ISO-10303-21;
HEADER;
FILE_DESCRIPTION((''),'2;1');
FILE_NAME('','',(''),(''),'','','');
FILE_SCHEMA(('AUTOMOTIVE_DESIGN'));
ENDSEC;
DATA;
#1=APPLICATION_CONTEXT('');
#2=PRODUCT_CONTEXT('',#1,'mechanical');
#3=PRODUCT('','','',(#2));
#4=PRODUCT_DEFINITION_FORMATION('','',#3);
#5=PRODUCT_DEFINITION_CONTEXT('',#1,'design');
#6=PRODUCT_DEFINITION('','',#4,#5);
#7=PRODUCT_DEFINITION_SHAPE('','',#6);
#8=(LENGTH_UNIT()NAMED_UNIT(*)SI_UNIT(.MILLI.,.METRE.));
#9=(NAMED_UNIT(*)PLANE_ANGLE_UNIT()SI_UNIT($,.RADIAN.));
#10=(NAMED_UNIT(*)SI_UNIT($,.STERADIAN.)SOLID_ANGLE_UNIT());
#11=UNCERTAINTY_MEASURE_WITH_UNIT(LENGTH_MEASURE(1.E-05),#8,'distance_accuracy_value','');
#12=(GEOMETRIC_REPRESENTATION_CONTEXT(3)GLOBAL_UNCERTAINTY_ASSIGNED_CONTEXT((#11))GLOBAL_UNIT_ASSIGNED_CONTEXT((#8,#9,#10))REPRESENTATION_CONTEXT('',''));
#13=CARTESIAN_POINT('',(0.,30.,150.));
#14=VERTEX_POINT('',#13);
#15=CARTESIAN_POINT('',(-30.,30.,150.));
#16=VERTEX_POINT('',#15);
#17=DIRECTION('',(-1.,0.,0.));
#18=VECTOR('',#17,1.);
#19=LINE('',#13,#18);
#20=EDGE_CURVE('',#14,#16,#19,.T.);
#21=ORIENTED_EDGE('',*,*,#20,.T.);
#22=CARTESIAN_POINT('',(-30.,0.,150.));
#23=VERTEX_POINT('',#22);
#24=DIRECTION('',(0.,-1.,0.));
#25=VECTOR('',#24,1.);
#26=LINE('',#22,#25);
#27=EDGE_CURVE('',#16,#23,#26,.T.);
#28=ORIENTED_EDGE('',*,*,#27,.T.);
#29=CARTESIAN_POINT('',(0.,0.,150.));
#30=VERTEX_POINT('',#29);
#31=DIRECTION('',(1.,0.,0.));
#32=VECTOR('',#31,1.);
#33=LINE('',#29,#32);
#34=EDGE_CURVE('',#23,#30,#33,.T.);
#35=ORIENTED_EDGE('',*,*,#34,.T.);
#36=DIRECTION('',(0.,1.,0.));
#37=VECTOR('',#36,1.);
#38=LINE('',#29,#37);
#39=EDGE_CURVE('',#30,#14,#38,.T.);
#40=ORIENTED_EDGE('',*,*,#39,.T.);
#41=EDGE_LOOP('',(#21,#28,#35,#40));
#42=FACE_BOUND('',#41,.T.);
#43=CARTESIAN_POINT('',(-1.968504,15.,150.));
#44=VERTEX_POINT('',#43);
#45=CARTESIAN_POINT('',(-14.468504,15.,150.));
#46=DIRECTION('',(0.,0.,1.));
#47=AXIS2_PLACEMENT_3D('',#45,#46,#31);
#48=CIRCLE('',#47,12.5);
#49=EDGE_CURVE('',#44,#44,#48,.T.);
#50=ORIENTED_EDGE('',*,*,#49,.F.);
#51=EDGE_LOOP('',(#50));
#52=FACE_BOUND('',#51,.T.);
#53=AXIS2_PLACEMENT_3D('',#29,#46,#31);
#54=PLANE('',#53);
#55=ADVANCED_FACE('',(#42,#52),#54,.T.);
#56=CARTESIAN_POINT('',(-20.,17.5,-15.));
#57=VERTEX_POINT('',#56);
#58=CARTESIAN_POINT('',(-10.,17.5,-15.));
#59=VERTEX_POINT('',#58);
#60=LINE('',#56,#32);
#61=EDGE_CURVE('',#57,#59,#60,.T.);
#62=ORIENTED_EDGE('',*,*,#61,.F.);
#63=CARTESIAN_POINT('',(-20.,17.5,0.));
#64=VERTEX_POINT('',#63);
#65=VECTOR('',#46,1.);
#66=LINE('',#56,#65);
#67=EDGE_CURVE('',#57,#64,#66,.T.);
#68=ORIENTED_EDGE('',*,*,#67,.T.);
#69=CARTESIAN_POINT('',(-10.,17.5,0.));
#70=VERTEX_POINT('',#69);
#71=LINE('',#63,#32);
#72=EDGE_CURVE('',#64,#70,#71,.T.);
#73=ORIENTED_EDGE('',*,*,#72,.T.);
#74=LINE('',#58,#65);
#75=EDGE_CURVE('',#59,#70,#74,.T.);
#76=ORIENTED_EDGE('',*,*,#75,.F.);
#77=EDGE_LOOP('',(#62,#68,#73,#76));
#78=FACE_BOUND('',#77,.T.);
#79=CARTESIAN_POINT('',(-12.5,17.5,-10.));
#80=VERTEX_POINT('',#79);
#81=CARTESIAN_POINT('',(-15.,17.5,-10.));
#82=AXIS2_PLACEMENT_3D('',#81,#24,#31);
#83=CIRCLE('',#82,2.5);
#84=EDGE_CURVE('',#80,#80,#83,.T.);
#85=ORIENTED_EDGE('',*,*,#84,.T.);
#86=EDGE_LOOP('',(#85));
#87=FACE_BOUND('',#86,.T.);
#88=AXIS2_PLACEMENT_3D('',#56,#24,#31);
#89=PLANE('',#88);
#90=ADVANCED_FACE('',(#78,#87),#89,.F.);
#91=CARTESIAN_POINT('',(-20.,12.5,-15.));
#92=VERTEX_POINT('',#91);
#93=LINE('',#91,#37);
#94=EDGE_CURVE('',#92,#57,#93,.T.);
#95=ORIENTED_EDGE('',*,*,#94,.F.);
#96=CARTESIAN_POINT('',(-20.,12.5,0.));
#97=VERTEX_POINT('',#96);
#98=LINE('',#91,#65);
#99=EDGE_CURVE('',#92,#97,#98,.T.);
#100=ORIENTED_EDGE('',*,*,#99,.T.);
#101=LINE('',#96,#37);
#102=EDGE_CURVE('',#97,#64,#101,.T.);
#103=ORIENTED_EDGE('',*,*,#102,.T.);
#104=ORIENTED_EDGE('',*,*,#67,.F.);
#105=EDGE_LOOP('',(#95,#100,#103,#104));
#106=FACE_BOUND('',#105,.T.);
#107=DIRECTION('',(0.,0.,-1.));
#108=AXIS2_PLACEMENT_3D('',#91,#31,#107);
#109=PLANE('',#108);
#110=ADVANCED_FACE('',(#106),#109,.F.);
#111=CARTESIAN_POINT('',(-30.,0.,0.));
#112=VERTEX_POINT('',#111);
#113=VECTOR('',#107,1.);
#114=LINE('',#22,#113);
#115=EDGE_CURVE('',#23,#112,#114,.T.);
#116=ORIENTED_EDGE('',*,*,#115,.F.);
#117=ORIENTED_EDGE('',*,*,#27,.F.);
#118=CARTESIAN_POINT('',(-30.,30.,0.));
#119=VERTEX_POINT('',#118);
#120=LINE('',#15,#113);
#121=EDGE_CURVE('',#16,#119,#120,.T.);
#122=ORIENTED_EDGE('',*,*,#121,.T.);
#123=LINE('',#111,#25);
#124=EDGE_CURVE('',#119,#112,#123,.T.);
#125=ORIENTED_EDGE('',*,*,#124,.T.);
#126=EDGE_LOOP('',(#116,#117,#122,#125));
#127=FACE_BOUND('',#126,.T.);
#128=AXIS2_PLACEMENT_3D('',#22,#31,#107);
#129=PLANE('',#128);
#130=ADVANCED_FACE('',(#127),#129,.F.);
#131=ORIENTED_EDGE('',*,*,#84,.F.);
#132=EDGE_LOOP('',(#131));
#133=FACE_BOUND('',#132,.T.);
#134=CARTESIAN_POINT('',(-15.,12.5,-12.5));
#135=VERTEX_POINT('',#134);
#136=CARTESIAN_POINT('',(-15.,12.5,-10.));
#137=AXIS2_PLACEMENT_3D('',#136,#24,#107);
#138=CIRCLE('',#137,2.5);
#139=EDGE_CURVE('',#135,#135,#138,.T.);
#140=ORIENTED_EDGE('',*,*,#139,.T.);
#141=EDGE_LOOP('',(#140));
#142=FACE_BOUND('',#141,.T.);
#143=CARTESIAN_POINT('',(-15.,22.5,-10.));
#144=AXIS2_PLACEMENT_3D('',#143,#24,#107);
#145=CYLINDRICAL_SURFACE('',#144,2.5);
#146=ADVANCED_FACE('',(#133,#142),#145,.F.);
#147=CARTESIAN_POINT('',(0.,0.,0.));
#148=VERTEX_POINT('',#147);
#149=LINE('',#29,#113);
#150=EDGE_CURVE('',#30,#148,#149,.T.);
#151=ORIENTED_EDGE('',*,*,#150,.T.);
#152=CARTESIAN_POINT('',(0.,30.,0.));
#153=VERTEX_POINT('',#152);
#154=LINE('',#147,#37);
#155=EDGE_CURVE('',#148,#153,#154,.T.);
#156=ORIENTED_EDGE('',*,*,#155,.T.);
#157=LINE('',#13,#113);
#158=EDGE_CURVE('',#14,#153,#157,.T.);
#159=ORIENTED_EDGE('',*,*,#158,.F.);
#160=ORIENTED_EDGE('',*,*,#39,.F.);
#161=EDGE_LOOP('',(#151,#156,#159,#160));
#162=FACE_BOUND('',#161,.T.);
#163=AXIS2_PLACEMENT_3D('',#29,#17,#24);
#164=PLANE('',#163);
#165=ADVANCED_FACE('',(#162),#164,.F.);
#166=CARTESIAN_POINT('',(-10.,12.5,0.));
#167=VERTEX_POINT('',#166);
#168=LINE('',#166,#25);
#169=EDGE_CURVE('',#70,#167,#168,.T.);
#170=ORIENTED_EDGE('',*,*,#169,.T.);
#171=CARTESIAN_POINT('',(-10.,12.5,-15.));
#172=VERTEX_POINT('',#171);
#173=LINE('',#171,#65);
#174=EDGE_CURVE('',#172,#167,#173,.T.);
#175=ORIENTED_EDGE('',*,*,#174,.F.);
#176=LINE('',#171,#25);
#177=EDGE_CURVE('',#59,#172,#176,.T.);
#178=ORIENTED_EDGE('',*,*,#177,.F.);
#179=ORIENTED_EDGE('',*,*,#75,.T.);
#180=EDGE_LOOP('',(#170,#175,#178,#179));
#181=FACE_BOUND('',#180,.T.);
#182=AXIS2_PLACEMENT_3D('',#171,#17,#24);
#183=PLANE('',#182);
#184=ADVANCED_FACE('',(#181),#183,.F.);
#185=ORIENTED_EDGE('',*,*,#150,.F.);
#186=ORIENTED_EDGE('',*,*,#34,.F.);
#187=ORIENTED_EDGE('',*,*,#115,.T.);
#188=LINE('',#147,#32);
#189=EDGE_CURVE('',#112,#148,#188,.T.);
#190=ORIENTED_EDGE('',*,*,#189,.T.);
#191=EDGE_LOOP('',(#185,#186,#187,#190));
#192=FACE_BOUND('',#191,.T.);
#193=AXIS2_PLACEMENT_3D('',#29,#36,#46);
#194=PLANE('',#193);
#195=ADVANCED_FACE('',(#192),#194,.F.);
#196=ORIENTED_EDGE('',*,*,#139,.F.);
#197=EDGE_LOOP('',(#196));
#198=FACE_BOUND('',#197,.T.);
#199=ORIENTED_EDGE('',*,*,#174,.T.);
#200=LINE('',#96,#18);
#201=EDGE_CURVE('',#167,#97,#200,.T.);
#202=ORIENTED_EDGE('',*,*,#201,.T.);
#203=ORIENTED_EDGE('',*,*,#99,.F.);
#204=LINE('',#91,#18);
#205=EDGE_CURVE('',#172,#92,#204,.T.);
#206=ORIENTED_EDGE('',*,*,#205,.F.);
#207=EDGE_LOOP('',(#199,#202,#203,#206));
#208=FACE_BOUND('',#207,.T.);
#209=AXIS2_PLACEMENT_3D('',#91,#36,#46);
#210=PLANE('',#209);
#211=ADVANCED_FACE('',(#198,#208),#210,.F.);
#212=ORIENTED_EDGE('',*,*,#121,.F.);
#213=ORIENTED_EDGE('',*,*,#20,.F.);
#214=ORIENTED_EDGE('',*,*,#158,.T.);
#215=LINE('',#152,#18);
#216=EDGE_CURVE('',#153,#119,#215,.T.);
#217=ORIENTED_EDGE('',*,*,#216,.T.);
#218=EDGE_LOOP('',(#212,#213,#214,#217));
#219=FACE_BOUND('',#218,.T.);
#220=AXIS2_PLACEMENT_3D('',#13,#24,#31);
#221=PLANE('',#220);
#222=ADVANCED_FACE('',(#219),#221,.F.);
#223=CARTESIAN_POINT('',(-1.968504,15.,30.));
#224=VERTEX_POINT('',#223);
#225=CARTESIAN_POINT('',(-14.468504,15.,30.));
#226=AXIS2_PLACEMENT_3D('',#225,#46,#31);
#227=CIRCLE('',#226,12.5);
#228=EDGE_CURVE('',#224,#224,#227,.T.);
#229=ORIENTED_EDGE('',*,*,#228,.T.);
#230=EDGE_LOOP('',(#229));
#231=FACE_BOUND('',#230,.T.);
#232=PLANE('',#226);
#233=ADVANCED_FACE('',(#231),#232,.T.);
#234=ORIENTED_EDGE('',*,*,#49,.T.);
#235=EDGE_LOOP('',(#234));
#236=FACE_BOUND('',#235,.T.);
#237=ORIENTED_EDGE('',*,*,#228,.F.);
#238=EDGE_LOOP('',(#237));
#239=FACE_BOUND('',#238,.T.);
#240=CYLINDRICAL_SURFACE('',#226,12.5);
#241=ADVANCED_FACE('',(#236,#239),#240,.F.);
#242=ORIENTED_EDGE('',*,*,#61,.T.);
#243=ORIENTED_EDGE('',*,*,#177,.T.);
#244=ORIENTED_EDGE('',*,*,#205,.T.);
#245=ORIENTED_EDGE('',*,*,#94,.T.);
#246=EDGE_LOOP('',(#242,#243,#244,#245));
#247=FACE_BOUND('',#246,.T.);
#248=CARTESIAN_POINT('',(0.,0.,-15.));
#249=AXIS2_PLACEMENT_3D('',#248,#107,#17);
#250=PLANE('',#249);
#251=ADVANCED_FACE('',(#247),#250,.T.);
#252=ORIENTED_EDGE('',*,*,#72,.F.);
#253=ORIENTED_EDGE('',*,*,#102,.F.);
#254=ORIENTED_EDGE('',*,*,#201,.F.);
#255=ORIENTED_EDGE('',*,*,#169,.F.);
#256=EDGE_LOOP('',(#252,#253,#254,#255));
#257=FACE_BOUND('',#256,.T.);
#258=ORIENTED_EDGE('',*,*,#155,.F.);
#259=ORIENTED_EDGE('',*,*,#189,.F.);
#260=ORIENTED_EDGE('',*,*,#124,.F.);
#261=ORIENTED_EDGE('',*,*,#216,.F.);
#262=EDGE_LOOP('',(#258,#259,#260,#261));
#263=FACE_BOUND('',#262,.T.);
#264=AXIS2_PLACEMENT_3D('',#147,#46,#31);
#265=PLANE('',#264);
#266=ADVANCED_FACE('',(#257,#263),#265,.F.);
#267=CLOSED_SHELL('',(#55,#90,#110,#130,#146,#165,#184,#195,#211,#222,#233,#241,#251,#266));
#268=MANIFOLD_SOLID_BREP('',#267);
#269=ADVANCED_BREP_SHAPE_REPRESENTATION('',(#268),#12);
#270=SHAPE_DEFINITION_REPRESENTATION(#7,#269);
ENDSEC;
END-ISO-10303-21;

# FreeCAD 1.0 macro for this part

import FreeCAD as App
import Part
import Sketcher
Q = App.Units.Quantity

doc = App.newDocument("Part")
body = doc.addObject("PartDesign::Body", "Body")

# Sketch on XY plane
sketch1 = body.newObject("Sketcher::SketchObject", "Sketch")
sketch1.AttachmentSupport = (doc.getObject("XY_Plane"), [""])
sketch1.MapMode = "FlatFace"
sketch1.addGeometry([
    Part.LineSegment(App.Vector(-30, 30, 0), App.Vector(-30, 0, 0)),
    Part.LineSegment(App.Vector(-30, 0, 0), App.Vector(0, 0, 0)),
    Part.LineSegment(App.Vector(0, 0, 0), App.Vector(0, 30, 0)),
    Part.LineSegment(App.Vector(0, 30, 0), App.Vector(-30, 30, 0)),
], False)
sketch1.addConstraint([
    Sketcher.Constraint("Coincident", 0, 2, 1, 1),
    Sketcher.Constraint("Coincident", 1, 2, 2, 1),
    Sketcher.Constraint("Coincident", 2, 2, 3, 1),
    Sketcher.Constraint("Coincident", 3, 2, 0, 1),
    Sketcher.Constraint("Vertical", 0),
    Sketcher.Constraint("Horizontal", 1),
    Sketcher.Constraint("Vertical", 2),
    Sketcher.Constraint("Horizontal", 3),
    Sketcher.Constraint("Coincident", 1, 2, -1, 1),
    Sketcher.Constraint("Equal", 3, 0),
    Sketcher.Constraint("DistanceX", 1, 1, 1, 2, Q("30 mm")),
])
pad1 = body.newObject("PartDesign::Pad", "Pad")
pad1.Profile = sketch1
pad1.Length = 150

# Sketch on XY plane
sketch2 = body.newObject("Sketcher::SketchObject", "Sketch001")
sketch2.AttachmentSupport = (doc.getObject("XY_Plane"), [""])
sketch2.MapMode = "FlatFace"
sketch2.AttachmentOffset = App.Placement(App.Vector(0, 0, 150), App.Rotation())
sketch2.addGeometry(Part.Circle(App.Vector(-14.468504, 15, 0), App.Vector(0, 0, 1), 12.5), False)
sketch2.addConstraint([
    Sketcher.Constraint("Diameter", 0, Q("25 mm")),
    Sketcher.Constraint("DistanceY", -1, 1, 0, 3, Q("15 mm")),
    Sketcher.Constraint("DistanceX", 0, 3, -1, 1, Q("14.468504 mm")),
])
pocket1 = body.newObject("PartDesign::Pocket", "Pocket")
pocket1.Profile = sketch2
pocket1.Length = 120

# Sketch on XY plane
sketch3 = body.newObject("Sketcher::SketchObject", "Sketch002")
sketch3.AttachmentSupport = (doc.getObject("XY_Plane"), [""])
sketch3.MapMode = "FlatFace"
sketch3.addGeometry([
    Part.LineSegment(App.Vector(-10, 17.5, 0), App.Vector(-10, 12.5, 0)),
    Part.LineSegment(App.Vector(-10, 12.5, 0), App.Vector(-20, 12.5, 0)),
    Part.LineSegment(App.Vector(-20, 12.5, 0), App.Vector(-20, 17.5, 0)),
    Part.LineSegment(App.Vector(-20, 17.5, 0), App.Vector(-10, 17.5, 0)),
], False)
sketch3.addConstraint([
    Sketcher.Constraint("Coincident", 0, 2, 1, 1),
    Sketcher.Constraint("Coincident", 1, 2, 2, 1),
    Sketcher.Constraint("Coincident", 2, 2, 3, 1),
    Sketcher.Constraint("Coincident", 3, 2, 0, 1),
    Sketcher.Constraint("Vertical", 0),
    Sketcher.Constraint("Horizontal", 1),
    Sketcher.Constraint("Vertical", 2),
    Sketcher.Constraint("Horizontal", 3),
    Sketcher.Constraint("DistanceX", 1, 2, 1, 1, Q("10 mm")),
    Sketcher.Constraint("DistanceY", 0, 2, 0, 1, Q("5 mm")),
    Sketcher.Constraint("DistanceX", 0, 2, -1, 1, Q("10 mm")),
    Sketcher.Constraint("DistanceY", -1, 1, 0, 2, Q("12.5 mm")),
])
pad2 = body.newObject("PartDesign::Pad", "Pad001")
pad2.Profile = sketch3
pad2.Length = 15
pad2.Reversed = True

# Sketch on XZ plane
sketch4 = body.newObject("Sketcher::SketchObject", "Sketch003")
sketch4.AttachmentSupport = (doc.getObject("XZ_Plane"), [""])
sketch4.MapMode = "FlatFace"
sketch4.AttachmentOffset = App.Placement(App.Vector(0, 0, -12.5), App.Rotation())
sketch4.addGeometry(Part.Circle(App.Vector(-15, -10, 0), App.Vector(0, 0, 1), 2.5), False)
sketch4.addConstraint([
    Sketcher.Constraint("Diameter", 0, Q("5 mm")),
    Sketcher.Constraint("DistanceX", 0, 3, -1, 1, Q("15 mm")),
    Sketcher.Constraint("DistanceY", 0, 3, -1, 1, Q("10 mm")),
])
pocket2 = body.newObject("PartDesign::Pocket", "Pocket001")
pocket2.Profile = sketch4
pocket2.Length = 10

doc.recompute()
